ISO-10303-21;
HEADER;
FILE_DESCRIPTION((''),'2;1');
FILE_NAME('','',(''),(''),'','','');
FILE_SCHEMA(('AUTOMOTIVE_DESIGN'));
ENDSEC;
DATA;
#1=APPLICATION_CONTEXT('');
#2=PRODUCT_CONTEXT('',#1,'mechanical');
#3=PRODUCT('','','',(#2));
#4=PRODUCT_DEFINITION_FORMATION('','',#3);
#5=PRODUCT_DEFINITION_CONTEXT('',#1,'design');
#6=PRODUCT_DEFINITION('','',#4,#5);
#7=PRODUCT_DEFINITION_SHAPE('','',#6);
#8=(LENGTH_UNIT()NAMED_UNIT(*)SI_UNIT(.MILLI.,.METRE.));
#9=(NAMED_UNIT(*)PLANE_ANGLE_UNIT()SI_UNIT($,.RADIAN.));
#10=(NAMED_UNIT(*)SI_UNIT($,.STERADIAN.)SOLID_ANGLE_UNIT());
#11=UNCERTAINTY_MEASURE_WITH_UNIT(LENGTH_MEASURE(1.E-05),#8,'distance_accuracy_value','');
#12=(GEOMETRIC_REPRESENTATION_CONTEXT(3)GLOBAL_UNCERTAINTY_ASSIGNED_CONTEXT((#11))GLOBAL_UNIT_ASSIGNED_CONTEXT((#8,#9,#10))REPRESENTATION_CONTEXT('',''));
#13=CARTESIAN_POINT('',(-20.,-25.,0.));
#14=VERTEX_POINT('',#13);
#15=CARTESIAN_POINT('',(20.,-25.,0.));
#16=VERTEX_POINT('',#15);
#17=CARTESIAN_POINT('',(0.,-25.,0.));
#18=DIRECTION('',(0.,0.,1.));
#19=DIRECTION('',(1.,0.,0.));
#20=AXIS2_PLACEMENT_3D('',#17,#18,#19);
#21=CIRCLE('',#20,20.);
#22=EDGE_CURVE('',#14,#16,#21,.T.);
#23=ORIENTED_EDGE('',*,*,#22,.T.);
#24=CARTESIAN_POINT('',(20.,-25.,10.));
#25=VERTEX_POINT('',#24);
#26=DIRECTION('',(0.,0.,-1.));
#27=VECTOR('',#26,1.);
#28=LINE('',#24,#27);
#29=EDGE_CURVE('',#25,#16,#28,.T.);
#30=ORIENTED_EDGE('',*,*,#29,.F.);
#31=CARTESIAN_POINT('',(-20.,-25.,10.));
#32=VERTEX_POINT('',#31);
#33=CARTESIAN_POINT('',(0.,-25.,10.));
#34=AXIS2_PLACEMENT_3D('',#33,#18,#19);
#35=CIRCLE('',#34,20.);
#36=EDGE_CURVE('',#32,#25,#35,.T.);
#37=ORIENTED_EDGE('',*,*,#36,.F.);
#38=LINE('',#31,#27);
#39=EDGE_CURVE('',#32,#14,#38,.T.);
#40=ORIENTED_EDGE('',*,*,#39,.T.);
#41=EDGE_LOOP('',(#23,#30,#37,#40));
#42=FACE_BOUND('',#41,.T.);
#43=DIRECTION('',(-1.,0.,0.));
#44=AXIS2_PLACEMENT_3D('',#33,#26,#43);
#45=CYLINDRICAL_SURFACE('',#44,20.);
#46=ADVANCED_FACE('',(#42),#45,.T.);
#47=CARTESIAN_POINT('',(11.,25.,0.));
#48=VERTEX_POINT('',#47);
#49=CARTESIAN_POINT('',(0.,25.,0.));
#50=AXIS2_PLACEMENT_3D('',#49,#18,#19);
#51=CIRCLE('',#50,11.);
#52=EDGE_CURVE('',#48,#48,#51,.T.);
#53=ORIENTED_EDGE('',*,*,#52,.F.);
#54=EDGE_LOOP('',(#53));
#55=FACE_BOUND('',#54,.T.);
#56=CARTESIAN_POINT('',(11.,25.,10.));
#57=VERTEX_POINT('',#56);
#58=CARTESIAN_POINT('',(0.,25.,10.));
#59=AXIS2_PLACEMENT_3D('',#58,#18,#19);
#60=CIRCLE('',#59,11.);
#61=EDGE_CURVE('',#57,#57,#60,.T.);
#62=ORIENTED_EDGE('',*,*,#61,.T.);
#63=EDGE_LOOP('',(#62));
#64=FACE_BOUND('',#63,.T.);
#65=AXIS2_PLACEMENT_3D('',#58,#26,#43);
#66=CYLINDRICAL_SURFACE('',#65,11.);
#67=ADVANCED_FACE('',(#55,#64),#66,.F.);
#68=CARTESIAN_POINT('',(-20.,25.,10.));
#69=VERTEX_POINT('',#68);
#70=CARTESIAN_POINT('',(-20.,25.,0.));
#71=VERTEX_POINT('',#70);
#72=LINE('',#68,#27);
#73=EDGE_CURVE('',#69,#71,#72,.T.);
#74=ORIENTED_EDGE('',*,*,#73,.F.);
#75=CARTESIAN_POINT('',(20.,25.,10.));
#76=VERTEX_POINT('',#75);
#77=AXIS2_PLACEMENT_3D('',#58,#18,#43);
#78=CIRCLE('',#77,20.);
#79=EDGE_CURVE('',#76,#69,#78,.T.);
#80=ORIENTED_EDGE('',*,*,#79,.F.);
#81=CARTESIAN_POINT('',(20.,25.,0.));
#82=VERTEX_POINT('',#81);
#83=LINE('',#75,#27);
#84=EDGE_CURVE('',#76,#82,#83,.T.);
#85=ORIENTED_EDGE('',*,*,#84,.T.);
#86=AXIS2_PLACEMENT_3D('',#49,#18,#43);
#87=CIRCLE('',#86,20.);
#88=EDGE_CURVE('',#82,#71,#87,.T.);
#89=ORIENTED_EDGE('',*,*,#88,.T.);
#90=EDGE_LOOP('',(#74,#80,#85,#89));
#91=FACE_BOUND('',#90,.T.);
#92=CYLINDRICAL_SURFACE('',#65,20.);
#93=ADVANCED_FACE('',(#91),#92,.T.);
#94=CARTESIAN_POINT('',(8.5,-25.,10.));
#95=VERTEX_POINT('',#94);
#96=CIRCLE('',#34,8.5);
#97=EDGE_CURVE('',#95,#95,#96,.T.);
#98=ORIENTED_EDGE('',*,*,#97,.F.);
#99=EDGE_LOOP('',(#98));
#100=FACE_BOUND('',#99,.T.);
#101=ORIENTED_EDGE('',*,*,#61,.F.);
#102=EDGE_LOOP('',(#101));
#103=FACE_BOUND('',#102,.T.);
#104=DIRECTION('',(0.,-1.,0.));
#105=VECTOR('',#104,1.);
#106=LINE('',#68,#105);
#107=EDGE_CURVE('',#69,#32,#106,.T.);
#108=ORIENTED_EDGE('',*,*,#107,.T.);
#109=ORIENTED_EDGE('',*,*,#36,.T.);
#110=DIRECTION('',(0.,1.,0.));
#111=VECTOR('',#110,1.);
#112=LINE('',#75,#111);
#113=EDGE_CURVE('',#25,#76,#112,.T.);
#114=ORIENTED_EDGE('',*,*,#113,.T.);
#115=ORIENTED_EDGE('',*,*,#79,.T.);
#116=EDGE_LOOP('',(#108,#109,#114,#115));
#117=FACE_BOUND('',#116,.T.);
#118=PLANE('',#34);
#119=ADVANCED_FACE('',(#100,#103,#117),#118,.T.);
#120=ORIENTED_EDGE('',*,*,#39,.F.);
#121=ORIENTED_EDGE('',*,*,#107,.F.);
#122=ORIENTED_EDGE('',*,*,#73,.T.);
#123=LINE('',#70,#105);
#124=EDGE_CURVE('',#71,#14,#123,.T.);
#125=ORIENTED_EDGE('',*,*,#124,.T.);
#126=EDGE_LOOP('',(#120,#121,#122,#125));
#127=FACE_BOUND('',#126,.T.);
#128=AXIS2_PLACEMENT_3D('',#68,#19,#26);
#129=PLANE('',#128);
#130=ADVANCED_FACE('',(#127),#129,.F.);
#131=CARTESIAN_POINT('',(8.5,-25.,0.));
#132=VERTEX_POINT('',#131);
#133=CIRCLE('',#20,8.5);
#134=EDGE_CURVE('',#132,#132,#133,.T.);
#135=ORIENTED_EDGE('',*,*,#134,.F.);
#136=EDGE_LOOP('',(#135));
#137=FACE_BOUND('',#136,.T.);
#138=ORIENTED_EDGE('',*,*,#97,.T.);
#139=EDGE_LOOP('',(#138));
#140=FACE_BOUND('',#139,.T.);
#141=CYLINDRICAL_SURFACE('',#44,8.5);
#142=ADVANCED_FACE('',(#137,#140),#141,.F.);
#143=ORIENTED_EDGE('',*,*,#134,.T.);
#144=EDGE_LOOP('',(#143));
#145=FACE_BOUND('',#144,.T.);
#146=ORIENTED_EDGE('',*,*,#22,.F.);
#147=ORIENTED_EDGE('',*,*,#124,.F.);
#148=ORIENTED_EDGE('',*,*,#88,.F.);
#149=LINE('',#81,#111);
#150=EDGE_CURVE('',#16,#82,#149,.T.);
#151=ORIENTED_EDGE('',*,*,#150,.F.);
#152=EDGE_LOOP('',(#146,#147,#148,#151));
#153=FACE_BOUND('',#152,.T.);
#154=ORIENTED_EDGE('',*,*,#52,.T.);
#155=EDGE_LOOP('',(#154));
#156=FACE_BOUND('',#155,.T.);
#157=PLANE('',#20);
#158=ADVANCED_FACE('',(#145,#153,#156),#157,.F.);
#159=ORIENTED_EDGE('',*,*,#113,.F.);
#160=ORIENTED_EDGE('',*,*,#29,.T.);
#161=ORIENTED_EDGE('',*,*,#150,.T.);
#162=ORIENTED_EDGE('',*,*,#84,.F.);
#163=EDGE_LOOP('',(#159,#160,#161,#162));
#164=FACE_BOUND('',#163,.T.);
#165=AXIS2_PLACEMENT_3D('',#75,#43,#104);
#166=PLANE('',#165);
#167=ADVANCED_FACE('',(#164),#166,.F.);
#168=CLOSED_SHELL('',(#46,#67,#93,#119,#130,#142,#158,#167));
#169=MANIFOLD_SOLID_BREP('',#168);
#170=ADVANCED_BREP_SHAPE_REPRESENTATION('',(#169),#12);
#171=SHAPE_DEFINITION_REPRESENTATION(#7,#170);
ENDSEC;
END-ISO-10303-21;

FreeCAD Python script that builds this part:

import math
import FreeCAD as App
import Part
import Sketcher

V = App.Vector
Q = App.Units.Quantity

doc = App.newDocument("Part")
body = doc.addObject("PartDesign::Body", "Body")

sketch1 = body.newObject("Sketcher::SketchObject", "Sketch")
sketch1.AttachmentSupport = (doc.getObject("XY_Plane"), [""])
sketch1.MapMode = "FlatFace"
sketch1.addGeometry([
    Part.LineSegment(V(20, -25, 0), V(20, 25, 0)),
    Part.ArcOfCircle(Part.Circle(V(0, 25, 0), V(0, 0, 1), 20), math.radians(0), math.radians(180)),
    Part.LineSegment(V(-20, 25, 0), V(-20, -25, 0)),
    Part.ArcOfCircle(Part.Circle(V(0, -25, 0), V(0, 0, 1), 20), math.radians(180), math.radians(360)),
    Part.Circle(V(0, -25, 0), V(0, 0, 1), 8),
    Part.Circle(V(0, 25, 0), V(0, 0, 1), 11),
], False)
sketch1.addConstraint([
    Sketcher.Constraint("Tangent", 0, 2, 1, 1),
    Sketcher.Constraint("Tangent", 1, 2, 2, 1),
    Sketcher.Constraint("Tangent", 2, 2, 3, 1),
    Sketcher.Constraint("Tangent", 3, 2, 0, 1),
    Sketcher.Constraint("Vertical", 0),
    Sketcher.Constraint("Vertical", 2),
    Sketcher.Constraint("Coincident", 4, 3, 3, 3),
    Sketcher.Constraint("Coincident", 5, 3, 1, 3),
    Sketcher.Constraint("Symmetric", 1, 3, 3, 3, -1, 1),
    Sketcher.Constraint("Diameter", 4, Q("17 mm")),
    Sketcher.Constraint("Diameter", 5, Q("22 mm")),
    Sketcher.Constraint("Radius", 1, Q("20 mm")),
    Sketcher.Constraint("DistanceY", 0, 1, 0, 2, Q("50 mm")),
])
pad1 = body.newObject("PartDesign::Pad", "Pad")
pad1.Profile = sketch1
pad1.Length = 10

doc.recompute()
